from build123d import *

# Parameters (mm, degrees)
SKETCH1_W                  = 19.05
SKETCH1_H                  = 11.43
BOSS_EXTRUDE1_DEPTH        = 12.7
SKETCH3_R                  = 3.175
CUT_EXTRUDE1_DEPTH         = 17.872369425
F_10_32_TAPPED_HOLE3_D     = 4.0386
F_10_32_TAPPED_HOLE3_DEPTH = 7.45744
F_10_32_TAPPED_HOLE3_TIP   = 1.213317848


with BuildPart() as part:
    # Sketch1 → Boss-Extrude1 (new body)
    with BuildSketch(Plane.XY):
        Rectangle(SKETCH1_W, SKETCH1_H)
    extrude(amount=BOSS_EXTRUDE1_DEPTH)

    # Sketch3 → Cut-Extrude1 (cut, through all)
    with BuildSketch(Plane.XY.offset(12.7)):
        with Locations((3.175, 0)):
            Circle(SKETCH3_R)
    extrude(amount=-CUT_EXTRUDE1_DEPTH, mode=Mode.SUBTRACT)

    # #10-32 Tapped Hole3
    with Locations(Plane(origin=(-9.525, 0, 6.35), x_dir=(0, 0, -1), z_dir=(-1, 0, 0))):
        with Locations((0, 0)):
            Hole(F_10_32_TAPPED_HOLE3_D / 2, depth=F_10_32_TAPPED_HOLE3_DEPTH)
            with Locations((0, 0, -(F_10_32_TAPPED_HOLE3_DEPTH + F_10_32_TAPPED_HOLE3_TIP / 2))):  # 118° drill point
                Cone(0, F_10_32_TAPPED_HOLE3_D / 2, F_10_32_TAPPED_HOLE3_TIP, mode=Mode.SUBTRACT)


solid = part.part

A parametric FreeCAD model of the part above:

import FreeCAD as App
import Part
import Sketcher

V = App.Vector
Q = App.Units.Quantity

doc = App.newDocument("Part")
body = doc.addObject("PartDesign::Body", "Body")

# Sketch on XY plane
sketch1 = doc.addObject("Sketcher::SketchObject", "Sketch")
body.addObject(sketch1)
sketch1.AttachmentSupport = (doc.XY_Plane, [""])
sketch1.MapMode = "FlatFace"
sketch1.addGeometry([
    Part.LineSegment(V(-10, 6, 0), V(-10, -6, 0)),
    Part.LineSegment(V(-10, -6, 0), V(10, -6, 0)),
    Part.LineSegment(V(10, -6, 0), V(10, 6, 0)),
    Part.LineSegment(V(10, 6, 0), V(-10, 6, 0)),
], False)
sketch1.addConstraint([
    Sketcher.Constraint("Coincident", 0, 2, 1, 1),
    Sketcher.Constraint("Coincident", 1, 2, 2, 1),
    Sketcher.Constraint("Coincident", 2, 2, 3, 1),
    Sketcher.Constraint("Coincident", 3, 2, 0, 1),
    Sketcher.Constraint("Vertical", 0),
    Sketcher.Constraint("Horizontal", 1),
    Sketcher.Constraint("Vertical", 2),
    Sketcher.Constraint("Horizontal", 3),
    Sketcher.Constraint("Symmetric", 0, 2, 2, 2, -1, 1),
    Sketcher.Constraint("DistanceX", 1, 1, 1, 2, Q("0.75 in")),
    Sketcher.Constraint("DistanceY", 0, 2, 0, 1, Q("0.45 in")),
])
pad1 = doc.addObject("PartDesign::Pad", "Pad")
body.addObject(pad1)
pad1.Profile = sketch1
pad1.Length = Q("0.5 in")

# Sketch on XY plane
sketch2 = doc.addObject("Sketcher::SketchObject", "Sketch001")
body.addObject(sketch2)
sketch2.AttachmentSupport = (doc.XY_Plane, [""])
sketch2.MapMode = "FlatFace"
sketch2.AttachmentOffset = App.Placement(V(0, 0, 0.5 * 25.4), App.Rotation())
sketch2.addGeometry(Part.Circle(V(3.2, 0, 0), V(0, 0, 1), 3.2), False)
sketch2.addConstraint([
    Sketcher.Constraint("PointOnObject", 0, 3, -1),
    Sketcher.Constraint("Diameter", 0, Q("0.25 in")),
    Sketcher.Constraint("DistanceX", -1, 1, 0, 3, Q("0.125 in")),
])
pocket1 = doc.addObject("PartDesign::Pocket", "Pocket")
body.addObject(pocket1)
pocket1.Profile = sketch2
pocket1.Type = "ThroughAll"

# Sketch on YZ plane
sketch3 = doc.addObject("Sketcher::SketchObject", "Sketch002")
body.addObject(sketch3)
sketch3.AttachmentSupport = (doc.YZ_Plane, [""])
sketch3.MapMode = "FlatFace"
sketch3.AttachmentOffset = App.Placement(V(0, 0, -0.375 * 25.4), App.Rotation())
sketch3.addGeometry(Part.Circle(V(0, 6.3, 0), V(0, 0, 1), 2), False)
sketch3.addConstraint([
    Sketcher.Constraint("PointOnObject", 0, 3, -2),
    Sketcher.Constraint("Diameter", 0, Q("0.159 in")),
    Sketcher.Constraint("DistanceY", -1, 1, 0, 3, Q("0.25 in")),
])
doc.recompute()
hole = doc.addObject("PartDesign::Hole", "Hole")
body.addObject(hole)
hole.Profile = sketch3
hole.ThreadType = "None"
hole.Diameter = Q("0.159 in")
hole.DepthType = "Dimension"
hole.Depth = Q("0.2936 in")
hole.DrillPoint = "Angled"
hole.DrillPointAngle = 118
hole.Reversed = True

doc.recompute()
